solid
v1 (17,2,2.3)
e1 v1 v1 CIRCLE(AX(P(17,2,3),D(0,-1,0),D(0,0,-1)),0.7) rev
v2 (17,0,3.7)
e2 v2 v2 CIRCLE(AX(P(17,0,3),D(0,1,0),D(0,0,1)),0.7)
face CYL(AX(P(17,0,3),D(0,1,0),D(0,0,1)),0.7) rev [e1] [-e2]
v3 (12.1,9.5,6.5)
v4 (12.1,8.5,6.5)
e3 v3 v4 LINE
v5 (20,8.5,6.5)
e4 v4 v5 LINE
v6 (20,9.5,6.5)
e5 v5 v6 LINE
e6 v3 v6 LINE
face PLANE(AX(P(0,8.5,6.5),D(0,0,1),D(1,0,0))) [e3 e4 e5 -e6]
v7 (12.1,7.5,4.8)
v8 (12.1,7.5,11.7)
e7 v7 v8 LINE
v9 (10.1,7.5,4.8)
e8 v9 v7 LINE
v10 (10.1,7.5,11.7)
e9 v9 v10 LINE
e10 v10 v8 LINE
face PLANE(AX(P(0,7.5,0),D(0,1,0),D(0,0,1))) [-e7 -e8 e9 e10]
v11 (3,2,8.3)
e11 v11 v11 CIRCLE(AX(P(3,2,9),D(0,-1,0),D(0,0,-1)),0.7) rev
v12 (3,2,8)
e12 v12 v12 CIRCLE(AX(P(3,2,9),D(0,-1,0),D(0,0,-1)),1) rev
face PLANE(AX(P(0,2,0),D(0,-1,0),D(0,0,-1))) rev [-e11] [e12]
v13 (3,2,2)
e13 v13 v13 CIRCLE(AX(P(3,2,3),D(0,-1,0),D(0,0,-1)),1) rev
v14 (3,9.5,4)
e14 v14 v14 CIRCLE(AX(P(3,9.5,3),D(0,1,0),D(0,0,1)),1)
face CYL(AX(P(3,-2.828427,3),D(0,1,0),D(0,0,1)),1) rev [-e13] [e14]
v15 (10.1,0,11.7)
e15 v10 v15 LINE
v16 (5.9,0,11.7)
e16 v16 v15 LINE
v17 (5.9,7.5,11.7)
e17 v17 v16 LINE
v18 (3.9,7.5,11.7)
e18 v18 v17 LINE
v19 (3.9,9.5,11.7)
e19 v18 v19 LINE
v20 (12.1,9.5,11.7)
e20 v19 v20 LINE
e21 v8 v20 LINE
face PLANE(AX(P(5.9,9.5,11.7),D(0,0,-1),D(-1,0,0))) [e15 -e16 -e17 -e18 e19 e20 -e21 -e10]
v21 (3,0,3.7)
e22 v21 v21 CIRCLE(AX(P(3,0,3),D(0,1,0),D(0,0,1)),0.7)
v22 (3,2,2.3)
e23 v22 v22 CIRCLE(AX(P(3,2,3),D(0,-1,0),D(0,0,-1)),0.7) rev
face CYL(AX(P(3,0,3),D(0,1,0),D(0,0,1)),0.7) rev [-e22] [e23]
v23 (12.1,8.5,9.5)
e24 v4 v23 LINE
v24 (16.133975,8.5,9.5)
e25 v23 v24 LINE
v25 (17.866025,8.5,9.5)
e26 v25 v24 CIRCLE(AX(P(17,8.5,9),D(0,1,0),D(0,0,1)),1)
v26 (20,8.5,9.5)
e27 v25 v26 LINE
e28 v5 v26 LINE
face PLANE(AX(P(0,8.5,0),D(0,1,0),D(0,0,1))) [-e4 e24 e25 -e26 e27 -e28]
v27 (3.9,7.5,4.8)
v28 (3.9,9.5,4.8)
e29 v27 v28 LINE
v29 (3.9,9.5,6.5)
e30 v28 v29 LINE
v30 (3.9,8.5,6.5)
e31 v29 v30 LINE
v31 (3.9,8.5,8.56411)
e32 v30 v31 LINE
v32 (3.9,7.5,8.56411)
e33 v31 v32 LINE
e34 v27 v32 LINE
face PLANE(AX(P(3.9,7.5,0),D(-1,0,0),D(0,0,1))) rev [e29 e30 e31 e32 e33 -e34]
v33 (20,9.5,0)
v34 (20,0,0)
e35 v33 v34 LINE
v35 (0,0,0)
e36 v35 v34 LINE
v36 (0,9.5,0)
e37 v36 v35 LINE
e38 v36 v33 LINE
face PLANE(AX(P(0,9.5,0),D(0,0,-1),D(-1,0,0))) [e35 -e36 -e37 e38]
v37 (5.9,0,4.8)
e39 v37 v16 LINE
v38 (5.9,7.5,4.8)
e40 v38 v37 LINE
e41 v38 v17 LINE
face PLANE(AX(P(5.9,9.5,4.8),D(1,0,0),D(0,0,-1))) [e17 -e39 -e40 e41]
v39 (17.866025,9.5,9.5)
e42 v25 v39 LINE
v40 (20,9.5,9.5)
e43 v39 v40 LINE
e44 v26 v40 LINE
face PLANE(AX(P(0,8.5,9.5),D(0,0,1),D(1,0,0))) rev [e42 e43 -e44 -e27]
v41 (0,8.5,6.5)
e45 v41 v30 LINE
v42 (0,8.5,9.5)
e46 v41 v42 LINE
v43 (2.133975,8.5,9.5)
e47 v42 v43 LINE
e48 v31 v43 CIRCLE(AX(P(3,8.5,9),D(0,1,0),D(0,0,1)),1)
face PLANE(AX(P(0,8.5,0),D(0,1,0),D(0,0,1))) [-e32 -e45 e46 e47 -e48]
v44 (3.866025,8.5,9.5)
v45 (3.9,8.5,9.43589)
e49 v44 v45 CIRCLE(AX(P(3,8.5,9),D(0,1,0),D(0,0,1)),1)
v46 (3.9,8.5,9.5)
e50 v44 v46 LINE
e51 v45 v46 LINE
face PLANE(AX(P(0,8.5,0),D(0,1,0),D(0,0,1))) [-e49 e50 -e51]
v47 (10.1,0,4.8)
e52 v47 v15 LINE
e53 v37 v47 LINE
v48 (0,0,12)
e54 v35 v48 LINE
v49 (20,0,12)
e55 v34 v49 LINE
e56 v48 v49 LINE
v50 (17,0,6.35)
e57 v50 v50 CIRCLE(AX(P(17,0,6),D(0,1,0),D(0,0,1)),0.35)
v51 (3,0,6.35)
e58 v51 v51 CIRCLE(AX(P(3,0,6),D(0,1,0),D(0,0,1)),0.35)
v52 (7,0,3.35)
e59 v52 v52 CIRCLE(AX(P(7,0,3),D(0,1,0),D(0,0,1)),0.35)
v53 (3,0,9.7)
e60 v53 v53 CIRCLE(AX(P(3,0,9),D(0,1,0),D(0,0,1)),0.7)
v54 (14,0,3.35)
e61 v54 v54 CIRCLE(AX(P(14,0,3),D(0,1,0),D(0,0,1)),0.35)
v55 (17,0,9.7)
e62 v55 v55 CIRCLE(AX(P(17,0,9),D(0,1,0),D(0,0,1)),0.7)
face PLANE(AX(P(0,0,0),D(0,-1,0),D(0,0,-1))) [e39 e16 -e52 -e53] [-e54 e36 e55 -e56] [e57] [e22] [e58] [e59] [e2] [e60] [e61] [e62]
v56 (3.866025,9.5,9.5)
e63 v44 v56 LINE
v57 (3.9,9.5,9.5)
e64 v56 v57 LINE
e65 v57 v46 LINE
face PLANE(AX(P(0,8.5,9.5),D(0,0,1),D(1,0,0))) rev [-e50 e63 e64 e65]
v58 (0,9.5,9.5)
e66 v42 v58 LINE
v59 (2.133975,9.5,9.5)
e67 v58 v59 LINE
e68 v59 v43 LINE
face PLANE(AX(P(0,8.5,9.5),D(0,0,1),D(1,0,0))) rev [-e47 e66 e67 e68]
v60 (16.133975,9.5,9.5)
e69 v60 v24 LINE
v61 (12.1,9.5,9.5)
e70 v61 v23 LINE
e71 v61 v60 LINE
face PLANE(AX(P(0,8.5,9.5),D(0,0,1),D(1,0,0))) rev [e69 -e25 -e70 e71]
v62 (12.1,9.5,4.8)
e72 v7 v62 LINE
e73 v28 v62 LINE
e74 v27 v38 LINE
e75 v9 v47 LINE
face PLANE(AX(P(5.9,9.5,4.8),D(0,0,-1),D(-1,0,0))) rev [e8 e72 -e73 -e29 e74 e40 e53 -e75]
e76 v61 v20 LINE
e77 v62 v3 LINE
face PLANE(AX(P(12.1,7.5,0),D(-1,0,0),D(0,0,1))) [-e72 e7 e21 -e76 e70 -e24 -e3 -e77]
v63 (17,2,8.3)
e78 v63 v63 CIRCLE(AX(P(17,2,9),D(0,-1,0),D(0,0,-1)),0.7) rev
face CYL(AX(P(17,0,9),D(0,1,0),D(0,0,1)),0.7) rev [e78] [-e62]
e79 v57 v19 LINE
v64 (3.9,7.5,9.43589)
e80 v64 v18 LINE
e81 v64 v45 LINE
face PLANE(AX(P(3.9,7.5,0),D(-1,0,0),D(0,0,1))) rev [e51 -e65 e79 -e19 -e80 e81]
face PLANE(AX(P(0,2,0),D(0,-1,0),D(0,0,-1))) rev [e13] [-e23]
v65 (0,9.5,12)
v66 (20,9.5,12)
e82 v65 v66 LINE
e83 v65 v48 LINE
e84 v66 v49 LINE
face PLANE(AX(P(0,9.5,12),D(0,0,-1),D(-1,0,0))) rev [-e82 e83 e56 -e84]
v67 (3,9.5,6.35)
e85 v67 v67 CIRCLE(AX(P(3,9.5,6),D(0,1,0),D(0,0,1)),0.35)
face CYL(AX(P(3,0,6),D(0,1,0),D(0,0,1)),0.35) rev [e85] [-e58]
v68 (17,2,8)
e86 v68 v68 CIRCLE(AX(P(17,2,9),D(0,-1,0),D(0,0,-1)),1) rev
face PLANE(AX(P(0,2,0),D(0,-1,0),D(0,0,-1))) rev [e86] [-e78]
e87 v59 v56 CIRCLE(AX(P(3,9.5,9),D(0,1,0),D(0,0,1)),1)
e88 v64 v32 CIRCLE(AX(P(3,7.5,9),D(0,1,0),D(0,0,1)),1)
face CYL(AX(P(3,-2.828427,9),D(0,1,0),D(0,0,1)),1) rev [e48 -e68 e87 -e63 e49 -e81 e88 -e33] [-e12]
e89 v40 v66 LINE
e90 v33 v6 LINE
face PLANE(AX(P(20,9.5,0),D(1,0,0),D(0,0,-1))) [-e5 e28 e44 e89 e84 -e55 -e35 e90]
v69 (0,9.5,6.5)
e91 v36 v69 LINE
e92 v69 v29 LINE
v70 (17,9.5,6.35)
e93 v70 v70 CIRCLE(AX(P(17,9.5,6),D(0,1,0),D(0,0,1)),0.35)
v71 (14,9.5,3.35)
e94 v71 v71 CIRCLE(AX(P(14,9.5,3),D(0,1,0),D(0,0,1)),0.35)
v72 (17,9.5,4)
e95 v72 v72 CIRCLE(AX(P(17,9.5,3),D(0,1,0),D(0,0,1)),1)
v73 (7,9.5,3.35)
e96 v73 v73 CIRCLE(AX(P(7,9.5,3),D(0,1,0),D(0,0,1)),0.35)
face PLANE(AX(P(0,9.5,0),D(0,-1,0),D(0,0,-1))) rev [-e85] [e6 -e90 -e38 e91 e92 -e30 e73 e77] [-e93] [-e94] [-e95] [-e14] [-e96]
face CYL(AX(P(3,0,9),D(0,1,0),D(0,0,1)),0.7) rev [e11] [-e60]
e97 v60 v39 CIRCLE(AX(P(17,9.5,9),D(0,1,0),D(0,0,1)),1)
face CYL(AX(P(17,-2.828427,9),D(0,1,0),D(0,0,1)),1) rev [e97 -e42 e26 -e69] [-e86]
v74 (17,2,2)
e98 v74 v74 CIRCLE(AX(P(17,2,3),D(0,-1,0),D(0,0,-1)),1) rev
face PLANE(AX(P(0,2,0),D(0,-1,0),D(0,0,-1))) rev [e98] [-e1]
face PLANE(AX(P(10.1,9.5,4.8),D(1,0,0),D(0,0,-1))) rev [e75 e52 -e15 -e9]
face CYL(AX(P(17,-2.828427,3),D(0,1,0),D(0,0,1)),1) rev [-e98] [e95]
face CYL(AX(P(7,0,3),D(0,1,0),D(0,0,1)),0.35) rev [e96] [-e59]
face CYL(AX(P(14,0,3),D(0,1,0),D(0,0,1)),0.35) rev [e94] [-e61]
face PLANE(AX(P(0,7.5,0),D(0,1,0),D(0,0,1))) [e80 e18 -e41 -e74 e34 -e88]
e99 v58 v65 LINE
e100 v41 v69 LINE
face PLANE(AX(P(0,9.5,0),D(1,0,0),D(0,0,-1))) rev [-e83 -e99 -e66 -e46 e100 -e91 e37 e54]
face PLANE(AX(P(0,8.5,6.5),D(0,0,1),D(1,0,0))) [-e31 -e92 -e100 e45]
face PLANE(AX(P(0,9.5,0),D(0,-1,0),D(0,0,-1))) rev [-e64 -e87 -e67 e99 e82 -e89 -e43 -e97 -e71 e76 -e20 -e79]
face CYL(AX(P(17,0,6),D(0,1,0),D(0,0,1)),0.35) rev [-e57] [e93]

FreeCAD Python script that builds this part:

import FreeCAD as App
import Part
import Sketcher

V = App.Vector
Q = App.Units.Quantity

doc = App.newDocument("Part")
body = doc.addObject("PartDesign::Body", "Body")

sketch1 = body.newObject("Sketcher::SketchObject", "Sketch")
sketch1.AttachmentSupport = (doc.getObject("XZ_Plane"), [""])
sketch1.MapMode = "FlatFace"
sketch1.addGeometry([
    Part.LineSegment(V(0, 0, 0), V(0, 12, 0)),
    Part.LineSegment(V(0, 12, 0), V(20, 12, 0)),
    Part.LineSegment(V(20, 12, 0), V(20, 0, 0)),
    Part.LineSegment(V(20, 0, 0), V(0, 0, 0)),
    Part.LineSegment(V(10.1, 11.7, 0), V(5.9, 11.7, 0)),
    Part.LineSegment(V(5.9, 11.7, 0), V(5.9, 4.8, 0)),
    Part.LineSegment(V(5.9, 4.8, 0), V(10.1, 4.8, 0)),
    Part.LineSegment(V(10.1, 4.8, 0), V(10.1, 11.7, 0)),
], False)
sketch1.addConstraint([
    Sketcher.Constraint("Coincident", 0, 2, 1, 1),
    Sketcher.Constraint("Coincident", 1, 2, 2, 1),
    Sketcher.Constraint("Coincident", 2, 2, 3, 1),
    Sketcher.Constraint("Coincident", 3, 2, 0, 1),
    Sketcher.Constraint("Coincident", 4, 2, 5, 1),
    Sketcher.Constraint("Coincident", 5, 2, 6, 1),
    Sketcher.Constraint("Coincident", 6, 2, 7, 1),
    Sketcher.Constraint("Coincident", 7, 2, 4, 1),
    Sketcher.Constraint("Vertical", 0),
    Sketcher.Constraint("Horizontal", 1),
    Sketcher.Constraint("Vertical", 2),
    Sketcher.Constraint("Horizontal", 3),
    Sketcher.Constraint("Horizontal", 4),
    Sketcher.Constraint("Vertical", 5),
    Sketcher.Constraint("Horizontal", 6),
    Sketcher.Constraint("Vertical", 7),
    Sketcher.Constraint("Coincident", 3, 2, -1, 1),
    Sketcher.Constraint("DistanceX", 1, 1, 1, 2, Q("20 mm")),
    Sketcher.Constraint("DistanceY", 0, 1, 0, 2, Q("12 mm")),
    Sketcher.Constraint("DistanceX", 4, 2, 4, 1, Q("4.2 mm")),
    Sketcher.Constraint("DistanceY", 5, 2, 5, 1, Q("6.9 mm")),
    Sketcher.Constraint("DistanceX", -1, 1, 4, 2, Q("5.9 mm")),
    Sketcher.Constraint("DistanceY", -1, 1, 4, 2, Q("11.7 mm")),
])
pad1 = body.newObject("PartDesign::Pad", "Pad")
pad1.Profile = sketch1
pad1.Length = 9.5
pad1.Reversed = True

sketch2 = body.newObject("Sketcher::SketchObject", "Sketch001")
sketch2.AttachmentSupport = (doc.getObject("XZ_Plane"), [""])
sketch2.MapMode = "FlatFace"
sketch2.AttachmentOffset = App.Placement(V(0, 0, -9.5), App.Rotation())
sketch2.addGeometry([
    Part.LineSegment(V(0, 6.5, 0), V(0, 9.5, 0)),
    Part.LineSegment(V(0, 9.5, 0), V(20, 9.5, 0)),
    Part.LineSegment(V(20, 9.5, 0), V(20, 6.5, 0)),
    Part.LineSegment(V(20, 6.5, 0), V(0, 6.5, 0)),
], False)
sketch2.addConstraint([
    Sketcher.Constraint("Coincident", 0, 2, 1, 1),
    Sketcher.Constraint("Coincident", 1, 2, 2, 1),
    Sketcher.Constraint("Coincident", 2, 2, 3, 1),
    Sketcher.Constraint("Coincident", 3, 2, 0, 1),
    Sketcher.Constraint("Vertical", 0),
    Sketcher.Constraint("Horizontal", 1),
    Sketcher.Constraint("Vertical", 2),
    Sketcher.Constraint("Horizontal", 3),
    Sketcher.Constraint("PointOnObject", 0, 2, -2),
    Sketcher.Constraint("DistanceX", 1, 1, 1, 2, Q("20 mm")),
    Sketcher.Constraint("DistanceY", 0, 1, 0, 2, Q("3 mm")),
    Sketcher.Constraint("DistanceY", -1, 1, 0, 2, Q("9.5 mm")),
])
pocket1 = body.newObject("PartDesign::Pocket", "Pocket")
pocket1.Profile = sketch2
pocket1.Length = 1
pocket1.Reversed = True

sketch3 = body.newObject("Sketcher::SketchObject", "Sketch002")
sketch3.AttachmentSupport = (doc.getObject("XZ_Plane"), [""])
sketch3.MapMode = "FlatFace"
sketch3.AttachmentOffset = App.Placement(V(0, 0, -9.5), App.Rotation())
sketch3.addGeometry([
    Part.LineSegment(V(4, 5, 0), V(4, 12, 0)),
    Part.LineSegment(V(4, 12, 0), V(12, 12, 0)),
    Part.LineSegment(V(12, 12, 0), V(12, 5, 0)),
    Part.LineSegment(V(12, 5, 0), V(4, 5, 0)),
], False)
sketch3.addConstraint([
    Sketcher.Constraint("Coincident", 0, 2, 1, 1),
    Sketcher.Constraint("Coincident", 1, 2, 2, 1),
    Sketcher.Constraint("Coincident", 2, 2, 3, 1),
    Sketcher.Constraint("Coincident", 3, 2, 0, 1),
    Sketcher.Constraint("Vertical", 0),
    Sketcher.Constraint("Horizontal", 1),
    Sketcher.Constraint("Vertical", 2),
    Sketcher.Constraint("Horizontal", 3),
    Sketcher.Constraint("DistanceX", 1, 1, 1, 2, Q("8.2 mm")),
    Sketcher.Constraint("DistanceY", 0, 1, 0, 2, Q("6.9 mm")),
    Sketcher.Constraint("DistanceX", -1, 1, 0, 2, Q("3.9 mm")),
    Sketcher.Constraint("DistanceY", -1, 1, 0, 2, Q("11.7 mm")),
])
pocket2 = body.newObject("PartDesign::Pocket", "Pocket001")
pocket2.Profile = sketch3
pocket2.Length = 2
pocket2.Reversed = True

sketch4 = body.newObject("Sketcher::SketchObject", "Sketch003")
sketch4.AttachmentSupport = (doc.getObject("XZ_Plane"), [""])
sketch4.MapMode = "FlatFace"
sketch4.AttachmentOffset = App.Placement(V(0, 0, -9.5), App.Rotation())
sketch4.addGeometry([
    Part.Circle(V(3, 3, 0), V(0, 0, 1), 0.7),
    Part.Circle(V(3, 9, 0), V(0, 0, 1), 0.7),
    Part.Circle(V(17, 3, 0), V(0, 0, 1), 0.7),
    Part.Circle(V(17, 9, 0), V(0, 0, 1), 0.7),
    Part.Circle(V(7, 3, 0), V(0, 0, 1), 0.35),
    Part.Circle(V(14, 3, 0), V(0, 0, 1), 0.35),
    Part.Circle(V(3, 6, 0), V(0, 0, 1), 0.35),
    Part.Circle(V(17, 6, 0), V(0, 0, 1), 0.35),
], False)
sketch4.addConstraint([
    Sketcher.Constraint("Equal", 0, 1),
    Sketcher.Constraint("Equal", 1, 2),
    Sketcher.Constraint("Equal", 2, 3),
    Sketcher.Constraint("Equal", 4, 5),
    Sketcher.Constraint("Equal", 5, 6),
    Sketcher.Constraint("Equal", 6, 7),
    Sketcher.Constraint("Horizontal", 0, 3, 2, 3),
    Sketcher.Constraint("Horizontal", 1, 3, 3, 3),
    Sketcher.Constraint("Horizontal", 2, 3, 4, 3),
    Sketcher.Constraint("Horizontal", 4, 3, 5, 3),
    Sketcher.Constraint("Horizontal", 6, 3, 7, 3),
    Sketcher.Constraint("Vertical", 0, 3, 1, 3),
    Sketcher.Constraint("Vertical", 2, 3, 3, 3),
    Sketcher.Constraint("Vertical", 1, 3, 6, 3),
    Sketcher.Constraint("Vertical", 3, 3, 7, 3),
    Sketcher.Constraint("Diameter", 0, Q("1.4 mm")),
    Sketcher.Constraint("Diameter", 4, Q("0.7 mm")),
    Sketcher.Constraint("DistanceX", -1, 1, 0, 3, Q("3 mm")),
    Sketcher.Constraint("DistanceY", -1, 1, 0, 3, Q("3 mm")),
    Sketcher.Constraint("DistanceY", -1, 1, 1, 3, Q("9 mm")),
    Sketcher.Constraint("DistanceX", -1, 1, 2, 3, Q("17 mm")),
    Sketcher.Constraint("DistanceX", -1, 1, 4, 3, Q("7 mm")),
    Sketcher.Constraint("DistanceX", -1, 1, 5, 3, Q("14 mm")),
    Sketcher.Constraint("DistanceY", -1, 1, 6, 3, Q("6 mm")),
])
pocket3 = body.newObject("PartDesign::Pocket", "Pocket002")
pocket3.Profile = sketch4
pocket3.Type = "ThroughAll"
pocket3.Reversed = True

sketch5 = body.newObject("Sketcher::SketchObject", "Sketch004")
sketch5.AttachmentSupport = (doc.getObject("XZ_Plane"), [""])
sketch5.MapMode = "FlatFace"
sketch5.AttachmentOffset = App.Placement(V(0, 0, -9.5), App.Rotation())
sketch5.addGeometry([
    Part.Circle(V(3, 3, 0), V(0, 0, 1), 1),
    Part.Circle(V(3, 9, 0), V(0, 0, 1), 1),
    Part.Circle(V(17, 3, 0), V(0, 0, 1), 1),
    Part.Circle(V(17, 9, 0), V(0, 0, 1), 1),
], False)
sketch5.addConstraint([
    Sketcher.Constraint("Equal", 0, 1),
    Sketcher.Constraint("Equal", 1, 2),
    Sketcher.Constraint("Equal", 2, 3),
    Sketcher.Constraint("Horizontal", 0, 3, 2, 3),
    Sketcher.Constraint("Horizontal", 1, 3, 3, 3),
    Sketcher.Constraint("Vertical", 0, 3, 1, 3),
    Sketcher.Constraint("Vertical", 2, 3, 3, 3),
    Sketcher.Constraint("Diameter", 0, Q("2 mm")),
    Sketcher.Constraint("DistanceX", -1, 1, 0, 3, Q("3 mm")),
    Sketcher.Constraint("DistanceY", -1, 1, 0, 3, Q("3 mm")),
    Sketcher.Constraint("DistanceY", -1, 1, 1, 3, Q("9 mm")),
    Sketcher.Constraint("DistanceX", -1, 1, 2, 3, Q("17 mm")),
])
pocket4 = body.newObject("PartDesign::Pocket", "Pocket003")
pocket4.Profile = sketch5
pocket4.Length = 7.5
pocket4.Reversed = True

doc.recompute()
